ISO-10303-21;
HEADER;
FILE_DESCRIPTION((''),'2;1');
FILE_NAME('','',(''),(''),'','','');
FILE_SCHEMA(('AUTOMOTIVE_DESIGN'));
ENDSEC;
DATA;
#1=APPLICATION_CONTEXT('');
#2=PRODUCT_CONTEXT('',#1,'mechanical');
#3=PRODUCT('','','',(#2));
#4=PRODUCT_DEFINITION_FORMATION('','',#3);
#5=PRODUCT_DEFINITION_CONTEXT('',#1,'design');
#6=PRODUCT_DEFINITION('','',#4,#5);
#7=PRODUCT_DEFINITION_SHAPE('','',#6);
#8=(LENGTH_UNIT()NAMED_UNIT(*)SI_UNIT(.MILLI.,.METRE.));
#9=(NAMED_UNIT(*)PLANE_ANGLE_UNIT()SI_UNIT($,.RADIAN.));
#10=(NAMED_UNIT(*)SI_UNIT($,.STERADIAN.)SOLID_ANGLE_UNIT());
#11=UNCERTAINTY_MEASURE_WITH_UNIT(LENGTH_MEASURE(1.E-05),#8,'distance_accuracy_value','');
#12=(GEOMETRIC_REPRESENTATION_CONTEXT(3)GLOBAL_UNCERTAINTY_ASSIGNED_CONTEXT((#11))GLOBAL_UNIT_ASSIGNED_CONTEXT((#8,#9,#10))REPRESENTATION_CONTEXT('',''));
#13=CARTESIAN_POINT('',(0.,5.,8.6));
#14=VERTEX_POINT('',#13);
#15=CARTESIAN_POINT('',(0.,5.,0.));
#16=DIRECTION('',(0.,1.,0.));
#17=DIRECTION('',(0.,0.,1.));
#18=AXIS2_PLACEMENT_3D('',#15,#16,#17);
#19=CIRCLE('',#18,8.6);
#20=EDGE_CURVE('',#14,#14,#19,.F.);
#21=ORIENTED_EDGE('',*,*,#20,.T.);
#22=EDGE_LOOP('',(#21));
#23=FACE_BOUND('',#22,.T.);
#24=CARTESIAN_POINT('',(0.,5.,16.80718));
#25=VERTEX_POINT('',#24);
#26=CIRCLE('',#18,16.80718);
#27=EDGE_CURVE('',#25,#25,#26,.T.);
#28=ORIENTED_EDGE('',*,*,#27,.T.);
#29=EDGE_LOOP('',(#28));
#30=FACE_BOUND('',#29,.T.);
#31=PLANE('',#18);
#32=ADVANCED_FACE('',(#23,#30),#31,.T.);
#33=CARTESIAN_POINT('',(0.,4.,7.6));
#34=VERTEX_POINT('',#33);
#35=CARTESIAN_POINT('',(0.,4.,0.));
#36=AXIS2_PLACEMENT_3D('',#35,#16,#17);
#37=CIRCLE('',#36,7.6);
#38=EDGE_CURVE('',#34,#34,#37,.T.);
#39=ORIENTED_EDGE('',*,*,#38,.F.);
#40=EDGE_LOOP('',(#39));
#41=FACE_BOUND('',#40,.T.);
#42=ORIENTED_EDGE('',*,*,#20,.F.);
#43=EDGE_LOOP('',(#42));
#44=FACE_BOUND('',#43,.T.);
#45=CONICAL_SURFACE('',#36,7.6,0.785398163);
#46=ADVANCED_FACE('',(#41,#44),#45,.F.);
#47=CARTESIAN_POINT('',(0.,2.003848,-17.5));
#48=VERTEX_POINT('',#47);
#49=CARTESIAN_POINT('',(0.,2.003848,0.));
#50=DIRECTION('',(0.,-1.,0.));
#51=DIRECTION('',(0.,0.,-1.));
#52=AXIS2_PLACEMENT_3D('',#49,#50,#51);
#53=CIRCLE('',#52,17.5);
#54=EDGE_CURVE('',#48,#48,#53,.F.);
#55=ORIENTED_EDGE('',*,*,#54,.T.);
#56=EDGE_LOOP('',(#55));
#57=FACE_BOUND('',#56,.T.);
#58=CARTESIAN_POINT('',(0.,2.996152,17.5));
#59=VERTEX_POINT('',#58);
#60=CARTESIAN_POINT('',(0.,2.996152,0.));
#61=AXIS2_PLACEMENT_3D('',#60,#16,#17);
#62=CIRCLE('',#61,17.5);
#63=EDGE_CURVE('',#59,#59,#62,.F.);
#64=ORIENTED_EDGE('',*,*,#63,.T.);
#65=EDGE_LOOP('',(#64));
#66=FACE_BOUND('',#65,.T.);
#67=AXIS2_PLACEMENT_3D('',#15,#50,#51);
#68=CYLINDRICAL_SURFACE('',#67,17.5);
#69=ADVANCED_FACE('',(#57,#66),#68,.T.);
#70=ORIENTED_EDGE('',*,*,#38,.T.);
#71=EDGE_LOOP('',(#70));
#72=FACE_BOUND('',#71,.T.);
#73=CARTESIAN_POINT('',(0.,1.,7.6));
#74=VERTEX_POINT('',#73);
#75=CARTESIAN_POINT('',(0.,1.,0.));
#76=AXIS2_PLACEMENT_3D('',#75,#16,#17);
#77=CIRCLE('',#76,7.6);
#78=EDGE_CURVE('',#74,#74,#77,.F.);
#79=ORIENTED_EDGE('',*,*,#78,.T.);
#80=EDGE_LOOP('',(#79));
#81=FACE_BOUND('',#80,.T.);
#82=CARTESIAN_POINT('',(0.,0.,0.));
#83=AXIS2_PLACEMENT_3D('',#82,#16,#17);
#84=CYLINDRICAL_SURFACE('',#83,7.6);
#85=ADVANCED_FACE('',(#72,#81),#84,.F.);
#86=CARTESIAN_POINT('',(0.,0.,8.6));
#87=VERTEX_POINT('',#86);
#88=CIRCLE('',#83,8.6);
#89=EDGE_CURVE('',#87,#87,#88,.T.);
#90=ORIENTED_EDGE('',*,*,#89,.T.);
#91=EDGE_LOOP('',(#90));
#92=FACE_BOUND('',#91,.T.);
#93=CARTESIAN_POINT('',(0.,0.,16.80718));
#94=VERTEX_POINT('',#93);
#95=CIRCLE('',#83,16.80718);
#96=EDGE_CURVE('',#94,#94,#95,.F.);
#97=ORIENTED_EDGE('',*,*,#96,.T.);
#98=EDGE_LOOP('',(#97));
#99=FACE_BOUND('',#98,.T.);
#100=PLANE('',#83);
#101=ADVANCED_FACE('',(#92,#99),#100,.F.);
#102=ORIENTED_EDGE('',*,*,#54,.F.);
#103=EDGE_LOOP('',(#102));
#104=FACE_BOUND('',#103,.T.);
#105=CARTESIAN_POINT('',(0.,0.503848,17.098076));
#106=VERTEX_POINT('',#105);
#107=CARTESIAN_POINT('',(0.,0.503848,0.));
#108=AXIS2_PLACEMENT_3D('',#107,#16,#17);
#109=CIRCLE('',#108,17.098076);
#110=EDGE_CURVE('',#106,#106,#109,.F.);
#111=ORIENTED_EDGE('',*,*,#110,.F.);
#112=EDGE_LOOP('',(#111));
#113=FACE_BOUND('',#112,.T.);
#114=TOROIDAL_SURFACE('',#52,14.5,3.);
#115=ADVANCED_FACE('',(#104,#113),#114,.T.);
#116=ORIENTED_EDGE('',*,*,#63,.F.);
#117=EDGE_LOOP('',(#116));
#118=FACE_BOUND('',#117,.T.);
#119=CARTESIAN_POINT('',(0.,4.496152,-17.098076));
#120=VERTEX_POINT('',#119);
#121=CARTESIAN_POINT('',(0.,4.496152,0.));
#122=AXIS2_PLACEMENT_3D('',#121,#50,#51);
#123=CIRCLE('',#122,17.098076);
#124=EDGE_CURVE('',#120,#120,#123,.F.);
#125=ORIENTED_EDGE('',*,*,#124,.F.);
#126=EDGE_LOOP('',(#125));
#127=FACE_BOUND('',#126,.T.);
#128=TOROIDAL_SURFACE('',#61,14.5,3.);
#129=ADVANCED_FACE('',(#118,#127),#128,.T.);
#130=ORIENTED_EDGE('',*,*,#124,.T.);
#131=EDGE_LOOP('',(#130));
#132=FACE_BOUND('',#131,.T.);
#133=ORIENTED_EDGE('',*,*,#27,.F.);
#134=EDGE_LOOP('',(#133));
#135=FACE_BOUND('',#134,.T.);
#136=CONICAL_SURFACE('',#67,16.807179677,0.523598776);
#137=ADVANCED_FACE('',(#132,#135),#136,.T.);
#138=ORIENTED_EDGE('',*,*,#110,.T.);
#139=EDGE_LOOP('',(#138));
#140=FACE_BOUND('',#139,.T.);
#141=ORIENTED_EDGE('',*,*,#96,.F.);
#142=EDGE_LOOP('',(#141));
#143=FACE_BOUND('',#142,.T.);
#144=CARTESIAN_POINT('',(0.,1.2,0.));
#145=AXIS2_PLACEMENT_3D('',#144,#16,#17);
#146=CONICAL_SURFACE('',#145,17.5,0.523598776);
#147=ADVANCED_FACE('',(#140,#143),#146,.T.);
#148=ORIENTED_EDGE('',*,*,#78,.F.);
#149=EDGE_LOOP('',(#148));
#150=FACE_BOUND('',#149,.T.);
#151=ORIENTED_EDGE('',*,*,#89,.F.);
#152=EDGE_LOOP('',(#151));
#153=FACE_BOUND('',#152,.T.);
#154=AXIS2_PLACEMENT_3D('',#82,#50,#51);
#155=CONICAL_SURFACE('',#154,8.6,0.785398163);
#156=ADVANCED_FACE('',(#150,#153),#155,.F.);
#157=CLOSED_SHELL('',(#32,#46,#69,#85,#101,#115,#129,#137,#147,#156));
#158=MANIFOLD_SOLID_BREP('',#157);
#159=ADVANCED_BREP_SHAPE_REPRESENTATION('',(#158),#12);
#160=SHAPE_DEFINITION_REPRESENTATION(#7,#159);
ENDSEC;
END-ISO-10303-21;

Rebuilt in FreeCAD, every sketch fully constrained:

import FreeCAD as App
import Part
import Sketcher


def edges_at(feature, points):
    """Names of the edges that pass closest to the given points."""
    edges = feature.Shape.Edges
    near = lambda p: min(range(len(edges)), key=lambda i: edges[i].distToShape(Part.Vertex(*p))[0])
    return sorted({f"Edge{near(p) + 1}" for p in points})

doc = App.newDocument("Part")
body = doc.addObject("PartDesign::Body", "Body")

# Sketch on XZ plane
sketch1 = body.newObject("Sketcher::SketchObject", "Sketch")
sketch1.AttachmentSupport = (doc.getObject("XZ_Plane"), [""])
sketch1.MapMode = "FlatFace"
sketch1.addGeometry(Part.Circle(App.Vector(0, 0, 0), App.Vector(0, 0, 1), 18), False)
sketch1.addConstraint([
    Sketcher.Constraint("Coincident", 0, 3, -1, 1),
    Sketcher.Constraint("Diameter", 0, 35.0),
])
pad1 = body.newObject("PartDesign::Pad", "Pad")
pad1.Profile = sketch1
pad1.Length = 5
pad1.Reversed = True

# Sketch on XZ plane
sketch2 = body.newObject("Sketcher::SketchObject", "Sketch001")
sketch2.AttachmentSupport = (doc.getObject("XZ_Plane"), [""])
sketch2.MapMode = "FlatFace"
sketch2.AttachmentOffset = App.Placement(App.Vector(0, 0, -5), App.Rotation())
sketch2.addGeometry(Part.Circle(App.Vector(0, 0, 0), App.Vector(0, 0, 1), 8), False)
sketch2.addConstraint([
    Sketcher.Constraint("Coincident", 0, 3, -1, 1),
    Sketcher.Constraint("Diameter", 0, 15.2),
])
pocket1 = body.newObject("PartDesign::Pocket", "Pocket")
pocket1.Profile = sketch2
pocket1.Type = "ThroughAll"
pocket1.Midplane = True
doc.recompute()

chamfer = body.newObject("PartDesign::Chamfer", "Chamfer")
chamfer.Base = (pocket1, edges_at(pocket1, [(0, 0, -17.5), (0, 5, -17.5)]))
chamfer.ChamferType = "Two distances"
chamfer.Size = 1.2
chamfer.Size2 = 0.69282
doc.recompute()

fillet = body.newObject("PartDesign::Fillet", "Fillet")
fillet.Base = (chamfer, edges_at(chamfer, [(0, 1.2, -17.5), (0, 3.8, -17.5)]))
fillet.Radius = 3
doc.recompute()

chamfer2 = body.newObject("PartDesign::Chamfer", "Chamfer001")
chamfer2.Base = (fillet, edges_at(fillet, [(0, 5, -7.6), (0, 0, -7.6)]))
chamfer2.Size = 1

doc.recompute()
